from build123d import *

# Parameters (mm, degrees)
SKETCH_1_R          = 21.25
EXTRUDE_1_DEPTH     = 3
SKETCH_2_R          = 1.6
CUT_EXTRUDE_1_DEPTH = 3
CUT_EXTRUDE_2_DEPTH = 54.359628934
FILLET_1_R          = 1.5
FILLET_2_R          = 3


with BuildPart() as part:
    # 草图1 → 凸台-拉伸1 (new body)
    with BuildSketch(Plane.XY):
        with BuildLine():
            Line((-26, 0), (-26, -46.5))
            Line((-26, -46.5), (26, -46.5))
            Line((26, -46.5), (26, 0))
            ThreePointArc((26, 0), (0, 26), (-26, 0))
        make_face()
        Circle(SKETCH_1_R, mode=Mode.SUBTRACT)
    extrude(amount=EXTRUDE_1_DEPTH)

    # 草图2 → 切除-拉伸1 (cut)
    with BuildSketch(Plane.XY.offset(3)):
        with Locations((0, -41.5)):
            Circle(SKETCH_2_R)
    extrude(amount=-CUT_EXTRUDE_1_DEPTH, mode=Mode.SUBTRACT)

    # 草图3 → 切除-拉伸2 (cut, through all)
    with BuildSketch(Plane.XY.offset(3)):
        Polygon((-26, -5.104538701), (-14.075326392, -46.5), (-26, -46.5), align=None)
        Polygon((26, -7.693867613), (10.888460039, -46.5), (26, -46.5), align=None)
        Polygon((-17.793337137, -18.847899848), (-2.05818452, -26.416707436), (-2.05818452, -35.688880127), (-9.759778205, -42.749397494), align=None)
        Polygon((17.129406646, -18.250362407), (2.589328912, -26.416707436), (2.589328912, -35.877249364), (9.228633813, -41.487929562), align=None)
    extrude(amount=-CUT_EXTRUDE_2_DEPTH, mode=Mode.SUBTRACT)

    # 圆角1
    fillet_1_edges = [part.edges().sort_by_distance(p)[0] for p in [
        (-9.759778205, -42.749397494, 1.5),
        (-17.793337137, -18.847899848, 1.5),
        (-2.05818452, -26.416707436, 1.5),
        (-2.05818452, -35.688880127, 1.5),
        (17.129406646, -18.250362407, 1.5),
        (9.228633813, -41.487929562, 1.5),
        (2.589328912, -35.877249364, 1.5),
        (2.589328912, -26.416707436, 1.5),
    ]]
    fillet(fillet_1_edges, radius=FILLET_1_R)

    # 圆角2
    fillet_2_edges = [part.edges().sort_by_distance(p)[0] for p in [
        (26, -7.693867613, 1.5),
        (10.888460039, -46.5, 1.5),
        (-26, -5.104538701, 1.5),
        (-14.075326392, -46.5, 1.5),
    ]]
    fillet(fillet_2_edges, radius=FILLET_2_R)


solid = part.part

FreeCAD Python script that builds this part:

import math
import FreeCAD as App
import Part
import Sketcher

V = App.Vector
Q = App.Units.Quantity


def edges_at(feature, points):
    """Names of the edges that pass closest to the given points."""
    edges = feature.Shape.Edges
    near = lambda p: min(range(len(edges)), key=lambda i: edges[i].distToShape(Part.Vertex(*p))[0])
    return sorted({f"Edge{near(p) + 1}" for p in points})


def add_polygon(sketch, points):
    """Adds a closed chain of lines whose ends are joined by coincident constraints."""
    first, n = sketch.GeometryCount, len(points)
    for a, b in zip(points, points[1:] + points[:1]):
        sketch.addGeometry(Part.LineSegment(App.Vector(*a, 0), App.Vector(*b, 0)), False)
    for i in range(n):
        sketch.addConstraint(Sketcher.Constraint("Coincident", first + i, 2, first + (i + 1) % n, 1))

doc = App.newDocument("Part")
body = doc.addObject("PartDesign::Body", "Body")

sketch1 = body.newObject("Sketcher::SketchObject", "Sketch")
sketch1.AttachmentSupport = (doc.getObject("XY_Plane"), [""])
sketch1.MapMode = "FlatFace"
sketch1.addGeometry(Part.LineSegment(V(-26, 0, 0), V(-26, -46, 0)), False)
sketch1.addGeometry(Part.LineSegment(V(-26, -46, 0), V(26, -46, 0)), False)
sketch1.addGeometry(Part.LineSegment(V(26, -46, 0), V(26, 0, 0)), False)
sketch1.addGeometry(Part.ArcOfCircle(Part.Circle(V(0, 0, 0), V(0, 0, 1), 26), math.radians(0), math.radians(180)), False)
sketch1.addGeometry(Part.Circle(V(0, 0, 0), V(0, 0, 1), 21), False)
sketch1.addConstraint(Sketcher.Constraint("Coincident", 0, 2, 1, 1))
sketch1.addConstraint(Sketcher.Constraint("Coincident", 1, 2, 2, 1))
sketch1.addConstraint(Sketcher.Constraint("Tangent", 2, 2, 3, 1))
sketch1.addConstraint(Sketcher.Constraint("Tangent", 3, 2, 0, 1))
sketch1.addConstraint(Sketcher.Constraint("Vertical", 0))
sketch1.addConstraint(Sketcher.Constraint("Horizontal", 1))
sketch1.addConstraint(Sketcher.Constraint("Vertical", 2))
sketch1.addConstraint(Sketcher.Constraint("Coincident", 3, 3, -1, 1))
sketch1.addConstraint(Sketcher.Constraint("Coincident", 4, 3, -1, 1))
sketch1.addConstraint(Sketcher.Constraint("Radius", 3, Q("26 mm")))
sketch1.addConstraint(Sketcher.Constraint("Diameter", 4, Q("42.5 mm")))
sketch1.addConstraint(Sketcher.Constraint("DistanceY", 0, 2, 0, 1, Q("46.5 mm")))
pad1 = body.newObject("PartDesign::Pad", "Pad")
pad1.Profile = sketch1
pad1.Length = 3

sketch2 = body.newObject("Sketcher::SketchObject", "Sketch001")
sketch2.AttachmentSupport = (doc.getObject("XY_Plane"), [""])
sketch2.MapMode = "FlatFace"
sketch2.AttachmentOffset = App.Placement(V(0, 0, 3), App.Rotation())
sketch2.addGeometry(Part.Circle(V(0, -41.5, 0), V(0, 0, 1), 1.6), False)
sketch2.addConstraint(Sketcher.Constraint("PointOnObject", 0, 3, -2))
sketch2.addConstraint(Sketcher.Constraint("Diameter", 0, Q("3.2 mm")))
sketch2.addConstraint(Sketcher.Constraint("DistanceY", 0, 3, -1, 1, Q("41.5 mm")))
pocket1 = body.newObject("PartDesign::Pocket", "Pocket")
pocket1.Profile = sketch2
pocket1.Length = 3

sketch3 = body.newObject("Sketcher::SketchObject", "Sketch002")
sketch3.AttachmentSupport = (doc.getObject("XY_Plane"), [""])
sketch3.MapMode = "FlatFace"
sketch3.AttachmentOffset = App.Placement(V(0, 0, 3), App.Rotation())
add_polygon(sketch3, [(-14, -46), (-26, -5), (-26, -46)])
add_polygon(sketch3, [(26, -8), (11, -46), (26, -46)])
add_polygon(sketch3, [(-2, -26), (-18, -19), (-10, -43), (-2, -36)])
add_polygon(sketch3, [(17, -18), (3, -26), (3, -36), (9, -41)])
sketch3.addConstraint(Sketcher.Constraint("Vertical", 1))
sketch3.addConstraint(Sketcher.Constraint("Horizontal", 2))
sketch3.addConstraint(Sketcher.Constraint("Horizontal", 4))
sketch3.addConstraint(Sketcher.Constraint("Vertical", 5))
sketch3.addConstraint(Sketcher.Constraint("Vertical", 9))
sketch3.addConstraint(Sketcher.Constraint("Vertical", 11))
sketch3.addConstraint(Sketcher.Constraint("Symmetric", 1, 2, 4, 2, -2))
sketch3.addConstraint(Sketcher.Constraint("Horizontal", 9, 2, 10, 2))
sketch3.addConstraint(Sketcher.Constraint("DistanceX", 0, 2, -1, 1, Q("26 mm")))
sketch3.addConstraint(Sketcher.Constraint("DistanceY", 1, 2, -1, 1, Q("46.5 mm")))
sketch3.addConstraint(Sketcher.Constraint("DistanceX", 4, 1, 4, 2, Q("15.11154 mm")))
sketch3.addConstraint(Sketcher.Constraint("DistanceY", 1, 2, 1, 1, Q("41.395461 mm")))
sketch3.addConstraint(Sketcher.Constraint("DistanceY", 11, 2, 11, 1, Q("9.460542 mm")))
sketch3.addConstraint(Sketcher.Constraint("DistanceY", 6, 2, -1, 1, Q("18.8479 mm")))
sketch3.addConstraint(Sketcher.Constraint("Distance", 0, Q("43.078789 mm")))
sketch3.addConstraint(Sketcher.Constraint("Distance", 12, Q("8.692531 mm")))
sketch3.addConstraint(Sketcher.Constraint("DistanceY", 5, 1, 5, 2, Q("38.806132 mm")))
sketch3.addConstraint(Sketcher.Constraint("DistanceY", 9, 1, 9, 2, Q("9.272173 mm")))
sketch3.addConstraint(Sketcher.Constraint("DistanceX", 7, 2, -1, 1, Q("9.759778 mm")))
sketch3.addConstraint(Sketcher.Constraint("DistanceY", 8, 2, -1, 1, Q("35.68888 mm")))
sketch3.addConstraint(Sketcher.Constraint("DistanceX", -1, 1, 10, 2, Q("2.589329 mm")))
sketch3.addConstraint(Sketcher.Constraint("DistanceY", 12, 2, -1, 1, Q("41.48793 mm")))
sketch3.addConstraint(Sketcher.Constraint("DistanceX", 6, 2, 2, 2, Q("3.718011 mm")))
sketch3.addConstraint(Sketcher.Constraint("DistanceX", 2, 2, 8, 2, Q("12.017142 mm")))
sketch3.addConstraint(Sketcher.Constraint("DistanceY", 7, 2, 9, 2, Q("16.33269 mm")))
sketch3.addConstraint(Sketcher.Constraint("DistanceX", 9, 2, 13, 2, Q("19.187591 mm")))
sketch3.addConstraint(Sketcher.Constraint("Distance", 10, Q("16.676422 mm")))
pocket2 = body.newObject("PartDesign::Pocket", "Pocket001")
pocket2.Profile = sketch3
pocket2.Type = "ThroughAll"
doc.recompute()

fillet = body.newObject("PartDesign::Fillet", "Fillet")
fillet.Base = (pocket2, edges_at(pocket2, [
    (-9.76, -42.749, 1.5),
    (-17.793, -18.848, 1.5),
    (-2.058, -26.417, 1.5),
    (-2.058, -35.689, 1.5),
    (17.129, -18.25, 1.5),
    (9.229, -41.488, 1.5),
    (2.589, -35.877, 1.5),
    (2.589, -26.417, 1.5),
]))
fillet.Radius = 1.5
doc.recompute()

fillet2 = body.newObject("PartDesign::Fillet", "Fillet001")
fillet2.Base = (fillet, edges_at(fillet, [
    (26, -7.694, 1.5),
    (10.888, -46.5, 1.5),
    (-26, -5.105, 1.5),
    (-14.075, -46.5, 1.5),
]))
fillet2.Radius = 3

doc.recompute()
